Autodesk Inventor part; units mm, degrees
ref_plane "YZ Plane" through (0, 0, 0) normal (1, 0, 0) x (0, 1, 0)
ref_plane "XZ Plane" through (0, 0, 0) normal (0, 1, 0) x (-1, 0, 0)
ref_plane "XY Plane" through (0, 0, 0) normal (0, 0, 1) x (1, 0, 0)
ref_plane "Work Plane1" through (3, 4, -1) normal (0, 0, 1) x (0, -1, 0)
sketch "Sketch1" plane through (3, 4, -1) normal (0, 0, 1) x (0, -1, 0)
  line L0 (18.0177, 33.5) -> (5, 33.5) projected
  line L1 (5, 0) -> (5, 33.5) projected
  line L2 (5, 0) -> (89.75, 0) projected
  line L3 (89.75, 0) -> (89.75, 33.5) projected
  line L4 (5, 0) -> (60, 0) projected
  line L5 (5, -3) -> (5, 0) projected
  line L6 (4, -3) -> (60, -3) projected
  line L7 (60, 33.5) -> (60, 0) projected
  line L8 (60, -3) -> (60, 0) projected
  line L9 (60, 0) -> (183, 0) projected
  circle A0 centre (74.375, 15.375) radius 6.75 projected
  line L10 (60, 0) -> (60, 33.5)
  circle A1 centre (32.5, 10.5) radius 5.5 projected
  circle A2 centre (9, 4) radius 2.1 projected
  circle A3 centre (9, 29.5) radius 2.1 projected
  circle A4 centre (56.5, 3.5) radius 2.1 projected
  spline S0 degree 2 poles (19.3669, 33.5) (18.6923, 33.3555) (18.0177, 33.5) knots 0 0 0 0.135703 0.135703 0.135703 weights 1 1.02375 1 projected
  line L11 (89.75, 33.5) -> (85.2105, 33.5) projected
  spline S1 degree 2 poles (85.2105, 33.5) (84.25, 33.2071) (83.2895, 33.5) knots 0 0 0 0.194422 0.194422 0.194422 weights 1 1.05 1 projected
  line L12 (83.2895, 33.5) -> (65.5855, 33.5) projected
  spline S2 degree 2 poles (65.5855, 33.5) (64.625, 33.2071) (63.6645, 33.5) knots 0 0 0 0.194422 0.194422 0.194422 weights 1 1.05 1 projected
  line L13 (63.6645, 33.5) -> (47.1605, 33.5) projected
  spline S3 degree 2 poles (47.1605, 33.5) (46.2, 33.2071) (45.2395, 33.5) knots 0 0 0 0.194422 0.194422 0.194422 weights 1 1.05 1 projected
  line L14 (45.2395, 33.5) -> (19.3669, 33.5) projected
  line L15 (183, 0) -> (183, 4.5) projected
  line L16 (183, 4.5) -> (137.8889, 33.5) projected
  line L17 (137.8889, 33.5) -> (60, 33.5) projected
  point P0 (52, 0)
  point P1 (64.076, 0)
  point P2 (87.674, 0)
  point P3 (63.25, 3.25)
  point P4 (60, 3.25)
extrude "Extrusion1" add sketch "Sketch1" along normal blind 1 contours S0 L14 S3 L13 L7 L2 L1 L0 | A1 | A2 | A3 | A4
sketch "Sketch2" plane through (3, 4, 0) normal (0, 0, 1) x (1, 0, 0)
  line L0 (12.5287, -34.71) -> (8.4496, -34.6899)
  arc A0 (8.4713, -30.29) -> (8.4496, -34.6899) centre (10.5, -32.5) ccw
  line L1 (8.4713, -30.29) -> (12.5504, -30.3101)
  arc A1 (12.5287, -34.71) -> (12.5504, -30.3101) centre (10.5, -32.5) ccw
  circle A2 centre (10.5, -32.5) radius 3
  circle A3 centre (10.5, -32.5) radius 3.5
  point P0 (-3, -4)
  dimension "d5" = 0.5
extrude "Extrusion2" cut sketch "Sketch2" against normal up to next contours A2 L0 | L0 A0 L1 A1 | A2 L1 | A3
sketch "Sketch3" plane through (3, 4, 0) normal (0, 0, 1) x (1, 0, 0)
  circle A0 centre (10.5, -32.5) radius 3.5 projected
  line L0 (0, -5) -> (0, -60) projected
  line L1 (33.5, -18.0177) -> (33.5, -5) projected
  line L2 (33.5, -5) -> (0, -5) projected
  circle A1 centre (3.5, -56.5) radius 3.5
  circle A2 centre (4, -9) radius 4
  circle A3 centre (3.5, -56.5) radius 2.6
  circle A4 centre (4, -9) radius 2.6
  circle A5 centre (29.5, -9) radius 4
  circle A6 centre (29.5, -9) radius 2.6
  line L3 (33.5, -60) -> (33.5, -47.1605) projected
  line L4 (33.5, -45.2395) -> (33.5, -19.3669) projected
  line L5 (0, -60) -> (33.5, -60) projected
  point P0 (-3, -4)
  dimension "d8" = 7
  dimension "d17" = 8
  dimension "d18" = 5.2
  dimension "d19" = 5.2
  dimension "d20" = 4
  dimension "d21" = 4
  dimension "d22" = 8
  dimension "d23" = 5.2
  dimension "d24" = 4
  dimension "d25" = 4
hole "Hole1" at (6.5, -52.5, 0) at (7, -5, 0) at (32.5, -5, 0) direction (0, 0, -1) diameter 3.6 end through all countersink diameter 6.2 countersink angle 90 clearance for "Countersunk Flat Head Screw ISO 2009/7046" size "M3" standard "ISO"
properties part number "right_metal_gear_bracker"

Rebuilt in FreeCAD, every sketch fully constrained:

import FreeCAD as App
import Part
import Sketcher

doc = App.newDocument("Part")
body = doc.addObject("PartDesign::Body", "Body")

sketch1 = body.newObject("Sketcher::SketchObject", "Sketch")
sketch1.AttachmentSupport = (doc.getObject("XY_Plane"), [""])
sketch1.MapMode = "FlatFace"
sketch1.AttachmentOffset = App.Placement(App.Vector(0, 0, -1), App.Rotation())
sketch1.addGeometry([
    Part.BSplineCurve([App.Vector(36.5, -15.3669, 0), App.Vector(36.3555, -14.6923, 0), App.Vector(36.5, -14.0177, 0)], [3, 3], [0, 0.135703], False, 2, [1, 1.02375, 1], False),
    Part.LineSegment(App.Vector(36.5, -14.0177, 0), App.Vector(36.5, -1, 0)),
    Part.LineSegment(App.Vector(36.5, -1, 0), App.Vector(3, -1, 0)),
    Part.LineSegment(App.Vector(3, -1, 0), App.Vector(3, -56, 0)),
    Part.LineSegment(App.Vector(3, -56, 0), App.Vector(36.5, -56, 0)),
    Part.LineSegment(App.Vector(36.5, -56, 0), App.Vector(36.5, -43.1605, 0)),
    Part.BSplineCurve([App.Vector(36.5, -43.1605, 0), App.Vector(36.2071, -42.2, 0), App.Vector(36.5, -41.2395, 0)], [3, 3], [0, 0.194422], False, 2, [1, 1.05, 1], False),
    Part.LineSegment(App.Vector(36.5, -41.2395, 0), App.Vector(36.5, -15.3669, 0)),
], False)
sketch1.addConstraint([
    Sketcher.Constraint("Block", 0),
    Sketcher.Constraint("Block", 6),
    Sketcher.Constraint("Coincident", 0, 2, 1, 1),
    Sketcher.Constraint("Coincident", 1, 2, 2, 1),
    Sketcher.Constraint("Coincident", 2, 2, 3, 1),
    Sketcher.Constraint("Coincident", 3, 2, 4, 1),
    Sketcher.Constraint("Coincident", 4, 2, 5, 1),
    Sketcher.Constraint("Coincident", 5, 2, 6, 1),
    Sketcher.Constraint("Coincident", 6, 2, 7, 1),
    Sketcher.Constraint("Coincident", 7, 2, 0, 1),
    Sketcher.Constraint("Vertical", 1),
    Sketcher.Constraint("Horizontal", 2),
    Sketcher.Constraint("Vertical", 3),
    Sketcher.Constraint("Horizontal", 4),
    Sketcher.Constraint("Vertical", 5),
    Sketcher.Constraint("DistanceY", 3, 2, 3, 1, 55.0),
    Sketcher.Constraint("DistanceX", 2, 2, 2, 1, 33.5),
    Sketcher.Constraint("DistanceY", 1, 2, -1, 1, 1.0),
])
pad1 = body.newObject("PartDesign::Pad", "Pad")
pad1.Profile = sketch1
pad1.Length = 1

sketch2 = body.newObject("Sketcher::SketchObject", "Sketch001")
sketch2.AttachmentSupport = (doc.getObject("XY_Plane"), [""])
sketch2.MapMode = "FlatFace"
sketch2.addGeometry(Part.Circle(App.Vector(13.5, -28.5, 0), App.Vector(0, 0, 1), 3.5), False)
sketch2.addConstraint([
    Sketcher.Constraint("Diameter", 0, 7.0),
    Sketcher.Constraint("DistanceX", -1, 1, 0, 3, 13.5),
    Sketcher.Constraint("DistanceY", 0, 3, -1, 1, 28.5),
])
pocket1 = body.newObject("PartDesign::Pocket", "Pocket")
pocket1.Profile = sketch2
pocket1.Type = "UpToFirst"

sketch3 = body.newObject("Sketcher::SketchObject", "Sketch002")
sketch3.AttachmentSupport = (doc.getObject("XY_Plane"), [""])
sketch3.MapMode = "FlatFace"
sketch3.addGeometry([
    Part.Circle(App.Vector(6.5, -52.5, 0), App.Vector(0, 0, 1), 1.8),
    Part.Circle(App.Vector(7, -5, 0), App.Vector(0, 0, 1), 1.8),
    Part.Circle(App.Vector(32.5, -5, 0), App.Vector(0, 0, 1), 1.8),
], False)
sketch3.addConstraint([
    Sketcher.Constraint("Equal", 0, 1),
    Sketcher.Constraint("Equal", 1, 2),
    Sketcher.Constraint("Horizontal", 1, 3, 2, 3),
    Sketcher.Constraint("Diameter", 0, 3.6),
    Sketcher.Constraint("DistanceX", -1, 1, 1, 3, 7.0),
    Sketcher.Constraint("DistanceY", 1, 3, -1, 1, 5.0),
    Sketcher.Constraint("DistanceX", 0, 3, 2, 3, 26.0),
    Sketcher.Constraint("DistanceX", -1, 1, 0, 3, 6.5),
    Sketcher.Constraint("DistanceY", 0, 3, -1, 1, 52.5),
])
doc.recompute()
hole = body.newObject("PartDesign::Hole", "Hole")
hole.Profile = sketch3
hole.ThreadType = "None"
hole.Diameter = 3.6
hole.DepthType = "ThroughAll"
hole.HoleCutType = "Countersink"
hole.HoleCutDiameter = 6.2
hole.HoleCutCountersinkAngle = 90

doc.recompute()
